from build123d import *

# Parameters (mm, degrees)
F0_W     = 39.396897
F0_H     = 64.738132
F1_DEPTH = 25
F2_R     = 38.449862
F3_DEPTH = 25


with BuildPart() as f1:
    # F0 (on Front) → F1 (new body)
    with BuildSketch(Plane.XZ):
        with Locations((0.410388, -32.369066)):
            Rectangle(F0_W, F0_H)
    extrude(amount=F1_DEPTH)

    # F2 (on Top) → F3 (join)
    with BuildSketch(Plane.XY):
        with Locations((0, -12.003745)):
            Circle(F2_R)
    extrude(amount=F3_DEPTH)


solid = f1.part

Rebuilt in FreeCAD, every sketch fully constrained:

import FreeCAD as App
import Part
import Sketcher

V = App.Vector


def add_polygon(sketch, points):
    """Adds a closed chain of lines whose ends are joined by coincident constraints."""
    first, n = sketch.GeometryCount, len(points)
    for a, b in zip(points, points[1:] + points[:1]):
        sketch.addGeometry(Part.LineSegment(App.Vector(*a, 0), App.Vector(*b, 0)), False)
    for i in range(n):
        sketch.addConstraint(Sketcher.Constraint("Coincident", first + i, 2, first + (i + 1) % n, 1))

doc = App.newDocument("Part")
body = doc.addObject("PartDesign::Body", "Body")

sketch1 = doc.addObject("Sketcher::SketchObject", "Sketch")
body.addObject(sketch1)
sketch1.AttachmentSupport = (doc.XZ_Plane, [""])
sketch1.MapMode = "FlatFace"
add_polygon(sketch1, [(-19, 0), (-19, -65), (20, -65), (20, 0)])
sketch1.addConstraint([
    Sketcher.Constraint("Vertical", 0),
    Sketcher.Constraint("Horizontal", 1),
    Sketcher.Constraint("Vertical", 2),
    Sketcher.Constraint("Horizontal", 3),
    Sketcher.Constraint("PointOnObject", 2, 2, -1),
    Sketcher.Constraint("DistanceY", 0, 2, 0, 1, 64.738132),
    Sketcher.Constraint("DistanceX", 1, 1, 1, 2, 39.396897),
    Sketcher.Constraint("DistanceX", 0, 2, -1, 1, 19.288061),
])
pad1 = doc.addObject("PartDesign::Pad", "Pad")
body.addObject(pad1)
pad1.Profile = sketch1
pad1.Length = 25

sketch2 = doc.addObject("Sketcher::SketchObject", "Sketch001")
body.addObject(sketch2)
sketch2.AttachmentSupport = (doc.XY_Plane, [""])
sketch2.MapMode = "FlatFace"
sketch2.addGeometry(Part.Circle(V(0, -12, 0), V(0, 0, 1), 38), False)
sketch2.addConstraint([
    Sketcher.Constraint("PointOnObject", 0, 3, -2),
    Sketcher.Constraint("Diameter", 0, 76.899724),
    Sketcher.Constraint("DistanceY", 0, 3, -1, 1, 12.003745),
])
pad2 = doc.addObject("PartDesign::Pad", "Pad001")
body.addObject(pad2)
pad2.Profile = sketch2
pad2.Length = 25

doc.recompute()
